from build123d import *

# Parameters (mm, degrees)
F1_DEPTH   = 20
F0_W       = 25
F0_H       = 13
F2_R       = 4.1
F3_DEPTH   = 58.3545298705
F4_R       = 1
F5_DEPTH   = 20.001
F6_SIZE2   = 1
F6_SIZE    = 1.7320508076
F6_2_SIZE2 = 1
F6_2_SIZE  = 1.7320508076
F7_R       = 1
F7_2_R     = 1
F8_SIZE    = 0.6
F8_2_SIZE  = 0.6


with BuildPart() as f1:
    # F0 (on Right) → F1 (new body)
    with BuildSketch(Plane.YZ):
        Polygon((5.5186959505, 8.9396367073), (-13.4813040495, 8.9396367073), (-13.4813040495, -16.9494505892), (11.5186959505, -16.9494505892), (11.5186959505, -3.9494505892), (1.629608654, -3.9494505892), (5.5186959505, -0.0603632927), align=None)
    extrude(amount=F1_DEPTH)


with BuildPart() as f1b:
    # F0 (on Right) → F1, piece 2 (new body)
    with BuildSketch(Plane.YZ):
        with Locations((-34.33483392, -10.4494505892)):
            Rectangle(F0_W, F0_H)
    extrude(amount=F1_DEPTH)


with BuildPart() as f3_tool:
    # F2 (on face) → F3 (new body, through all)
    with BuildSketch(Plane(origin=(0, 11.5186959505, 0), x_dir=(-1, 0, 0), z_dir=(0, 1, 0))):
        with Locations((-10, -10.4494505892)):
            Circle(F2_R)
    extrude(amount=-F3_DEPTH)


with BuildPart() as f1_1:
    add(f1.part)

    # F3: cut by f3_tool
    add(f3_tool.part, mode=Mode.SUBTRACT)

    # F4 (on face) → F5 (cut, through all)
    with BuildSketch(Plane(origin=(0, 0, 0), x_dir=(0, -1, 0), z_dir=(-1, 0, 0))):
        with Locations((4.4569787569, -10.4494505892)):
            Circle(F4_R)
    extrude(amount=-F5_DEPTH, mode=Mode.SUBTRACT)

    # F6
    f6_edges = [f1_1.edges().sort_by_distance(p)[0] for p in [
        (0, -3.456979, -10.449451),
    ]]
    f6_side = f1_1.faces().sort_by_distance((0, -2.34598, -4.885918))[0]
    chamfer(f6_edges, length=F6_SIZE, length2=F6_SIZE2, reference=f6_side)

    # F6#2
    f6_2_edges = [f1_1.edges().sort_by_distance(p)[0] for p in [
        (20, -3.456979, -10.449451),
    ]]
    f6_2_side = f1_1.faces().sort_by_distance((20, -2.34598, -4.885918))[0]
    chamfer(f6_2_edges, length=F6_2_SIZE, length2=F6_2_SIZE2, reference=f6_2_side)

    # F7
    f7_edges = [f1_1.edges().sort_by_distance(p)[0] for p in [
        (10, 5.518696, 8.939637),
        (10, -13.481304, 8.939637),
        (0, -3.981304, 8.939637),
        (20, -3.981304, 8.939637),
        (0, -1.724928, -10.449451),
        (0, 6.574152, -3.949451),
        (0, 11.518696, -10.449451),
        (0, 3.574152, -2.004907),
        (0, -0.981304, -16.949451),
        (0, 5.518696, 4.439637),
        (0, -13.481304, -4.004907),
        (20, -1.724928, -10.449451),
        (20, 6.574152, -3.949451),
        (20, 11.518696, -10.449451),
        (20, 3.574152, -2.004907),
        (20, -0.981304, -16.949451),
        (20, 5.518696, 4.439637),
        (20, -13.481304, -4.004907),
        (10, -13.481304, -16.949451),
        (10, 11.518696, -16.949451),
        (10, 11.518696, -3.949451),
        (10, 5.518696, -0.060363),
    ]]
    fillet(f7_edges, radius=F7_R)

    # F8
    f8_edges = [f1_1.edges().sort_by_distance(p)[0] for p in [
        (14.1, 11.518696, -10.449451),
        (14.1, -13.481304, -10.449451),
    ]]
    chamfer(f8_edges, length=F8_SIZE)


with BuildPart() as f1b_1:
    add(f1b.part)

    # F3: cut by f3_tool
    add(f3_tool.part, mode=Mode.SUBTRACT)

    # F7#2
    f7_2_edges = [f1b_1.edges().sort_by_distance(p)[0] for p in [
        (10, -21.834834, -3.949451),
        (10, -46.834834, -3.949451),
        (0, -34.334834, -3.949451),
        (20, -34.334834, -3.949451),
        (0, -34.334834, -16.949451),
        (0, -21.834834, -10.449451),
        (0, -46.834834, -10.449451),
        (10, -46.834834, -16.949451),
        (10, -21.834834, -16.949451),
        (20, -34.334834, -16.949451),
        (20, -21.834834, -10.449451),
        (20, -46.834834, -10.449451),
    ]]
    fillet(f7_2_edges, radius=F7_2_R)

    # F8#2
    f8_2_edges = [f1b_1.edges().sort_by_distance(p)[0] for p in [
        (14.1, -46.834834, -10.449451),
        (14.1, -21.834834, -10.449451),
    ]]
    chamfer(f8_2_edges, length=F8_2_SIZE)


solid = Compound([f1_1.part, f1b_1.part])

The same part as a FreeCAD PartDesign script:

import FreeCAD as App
import Part
import Sketcher

V = App.Vector
Q = App.Units.Quantity


def edges_at(feature, points):
    """Names of the edges that pass closest to the given points."""
    edges = feature.Shape.Edges
    near = lambda p: min(range(len(edges)), key=lambda i: edges[i].distToShape(Part.Vertex(*p))[0])
    return sorted({f"Edge{near(p) + 1}" for p in points})


def add_polygon(sketch, points):
    """Adds a closed chain of lines whose ends are joined by coincident constraints."""
    first, n = sketch.GeometryCount, len(points)
    for a, b in zip(points, points[1:] + points[:1]):
        sketch.addGeometry(Part.LineSegment(App.Vector(*a, 0), App.Vector(*b, 0)), False)
    for i in range(n):
        sketch.addConstraint(Sketcher.Constraint("Coincident", first + i, 2, first + (i + 1) % n, 1))

doc = App.newDocument("Part")
body = doc.addObject("PartDesign::Body", "Body")

sketch1 = doc.addObject("Sketcher::SketchObject", "Sketch")
body.addObject(sketch1)
sketch1.AttachmentSupport = (doc.YZ_Plane, [""])
sketch1.MapMode = "FlatFace"
add_polygon(sketch1, [(6, 9), (-13, 9), (-13, -17), (12, -17), (12, -4), (2, -4), (6, 0)])
sketch1.addConstraint([
    Sketcher.Constraint("Horizontal", 0),
    Sketcher.Constraint("Vertical", 1),
    Sketcher.Constraint("Horizontal", 2),
    Sketcher.Constraint("Vertical", 3),
    Sketcher.Constraint("Horizontal", 4),
    Sketcher.Constraint("Vertical", 6),
    Sketcher.Constraint("DistanceX", 0, 2, 0, 1, 19.0),
    Sketcher.Constraint("DistanceX", 2, 1, 2, 2, 25.0),
    Sketcher.Constraint("DistanceY", 3, 1, 3, 2, 13.0),
    Sketcher.Constraint("DistanceY", 6, 1, 6, 2, 9.0),
    Sketcher.Constraint("Angle", 5, Q("45 deg")),
    Sketcher.Constraint("Distance", 5, 5.5),
    Sketcher.Constraint("DistanceY", 1, 2, -1, 1, 16.949451),
    Sketcher.Constraint("DistanceX", -1, 1, 4, 2, 1.629609),
])
pad1 = doc.addObject("PartDesign::Pad", "Pad")
body.addObject(pad1)
pad1.Profile = sketch1
pad1.Length = 20
body2 = doc.addObject("PartDesign::Body", "Body001")

sketch2 = doc.addObject("Sketcher::SketchObject", "Sketch001")
body2.addObject(sketch2)
sketch2.AttachmentSupport = (doc.getObject("YZ_Plane001"), [""])
sketch2.MapMode = "FlatFace"
add_polygon(sketch2, [(-47, -4), (-47, -17), (-22, -17), (-22, -4)])
sketch2.addConstraint([
    Sketcher.Constraint("Vertical", 0),
    Sketcher.Constraint("Horizontal", 1),
    Sketcher.Constraint("Vertical", 2),
    Sketcher.Constraint("Horizontal", 3),
    Sketcher.Constraint("DistanceX", 1, 1, 1, 2, 25.0),
    Sketcher.Constraint("DistanceY", 0, 2, 0, 1, 13.0),
    Sketcher.Constraint("DistanceY", 0, 2, -1, 1, 16.949451),
    Sketcher.Constraint("DistanceX", 0, 2, -1, 1, 46.834834),
])
pad2 = doc.addObject("PartDesign::Pad", "Pad001")
body2.addObject(pad2)
pad2.Profile = sketch2
pad2.Length = 20
body3 = doc.addObject("PartDesign::Body", "Body002")

sketch3 = doc.addObject("Sketcher::SketchObject", "Sketch002")
body3.addObject(sketch3)
sketch3.AttachmentSupport = (doc.getObject("XZ_Plane002"), [""])
sketch3.MapMode = "FlatFace"
sketch3.AttachmentOffset = App.Placement(V(0, 0, -11.518696), App.Rotation())
sketch3.addGeometry(Part.Circle(V(10, -10.4, 0), V(0, 0, 1), 4.1), False)
sketch3.addConstraint([
    Sketcher.Constraint("Diameter", 0, 8.2),
    Sketcher.Constraint("DistanceX", -1, 1, 0, 3, 10.0),
    Sketcher.Constraint("DistanceY", 0, 3, -1, 1, 10.449451),
])
pad3 = doc.addObject("PartDesign::Pad", "Pad002")
body3.addObject(pad3)
pad3.Profile = sketch3
pad3.Length = 58.35453
doc.recompute()

body4 = doc.addObject("PartDesign::Body", "Body003")
body4.BaseFeature = body3
boolean = doc.addObject("PartDesign::Boolean", "Boolean")
body.addObject(boolean)
boolean.Type = "Cut"
boolean.addObjects([body4])
doc.recompute()

sketch4 = doc.addObject("Sketcher::SketchObject", "Sketch003")
body.addObject(sketch4)
sketch4.AttachmentSupport = (doc.YZ_Plane, [""])
sketch4.MapMode = "FlatFace"
sketch4.addGeometry(Part.Circle(V(-4.5, -10.4, 0), V(0, 0, 1), 1), False)
sketch4.addConstraint([
    Sketcher.Constraint("Diameter", 0, 2.0),
    Sketcher.Constraint("DistanceX", 0, 3, -1, 1, 4.456979),
    Sketcher.Constraint("DistanceY", 0, 3, -1, 1, 10.449451),
])
pocket1 = doc.addObject("PartDesign::Pocket", "Pocket")
body.addObject(pocket1)
pocket1.Profile = sketch4
pocket1.Type = "ThroughAll"
pocket1.Reversed = True
doc.recompute()

chamfer = doc.addObject("PartDesign::Chamfer", "Chamfer")
body.addObject(chamfer)
chamfer.Base = (pocket1, edges_at(pocket1, [(0, -3.457, -10.449)]))
chamfer.ChamferType = "Two distances"
chamfer.Size = 1.732051
chamfer.Size2 = 1
doc.recompute()

chamfer2 = doc.addObject("PartDesign::Chamfer", "Chamfer001")
body.addObject(chamfer2)
chamfer2.Base = (chamfer, edges_at(chamfer, [(20, -3.457, -10.449)]))
chamfer2.ChamferType = "Two distances"
chamfer2.Size = 1.732051
chamfer2.Size2 = 1
doc.recompute()

fillet = doc.addObject("PartDesign::Fillet", "Fillet")
body.addObject(fillet)
fillet.Base = (chamfer2, edges_at(chamfer2, [
    (10, 5.519, 8.94),
    (10, -13.481, 8.94),
    (0, -3.981, 8.94),
    (20, -3.981, 8.94),
    (0, -1.725, -10.449),
    (0, 6.574, -3.949),
    (0, 11.519, -10.449),
    (0, 3.574, -2.005),
    (0, -0.981, -16.949),
    (0, 5.519, 4.44),
    (0, -13.481, -4.005),
    (20, -1.725, -10.449),
    (20, 6.574, -3.949),
    (20, 11.519, -10.449),
    (20, 3.574, -2.005),
    (20, -0.981, -16.949),
    (20, 5.519, 4.44),
    (20, -13.481, -4.005),
    (10, -13.481, -16.949),
    (10, 11.519, -16.949),
    (10, 11.519, -3.949),
    (10, 5.519, -0.06),
]))
fillet.Radius = 1
doc.recompute()

chamfer3 = doc.addObject("PartDesign::Chamfer", "Chamfer002")
body.addObject(chamfer3)
chamfer3.Base = (fillet, edges_at(fillet, [(14.1, 11.519, -10.449), (14.1, -13.481, -10.449)]))
chamfer3.Size = 0.6
doc.recompute()

boolean2 = doc.addObject("PartDesign::Boolean", "Boolean001")
body2.addObject(boolean2)
boolean2.Type = "Cut"
boolean2.addObjects([body3])
doc.recompute()

fillet2 = doc.addObject("PartDesign::Fillet", "Fillet001")
body2.addObject(fillet2)
fillet2.Base = (boolean2, edges_at(boolean2, [
    (10, -21.835, -3.949),
    (10, -46.835, -3.949),
    (0, -34.335, -3.949),
    (20, -34.335, -3.949),
    (0, -34.335, -16.949),
    (0, -21.835, -10.449),
    (0, -46.835, -10.449),
    (10, -46.835, -16.949),
    (10, -21.835, -16.949),
    (20, -34.335, -16.949),
    (20, -21.835, -10.449),
    (20, -46.835, -10.449),
]))
fillet2.Radius = 1
doc.recompute()

chamfer4 = doc.addObject("PartDesign::Chamfer", "Chamfer003")
body2.addObject(chamfer4)
chamfer4.Base = (fillet2, edges_at(fillet2, [(14.1, -46.835, -10.449), (14.1, -21.835, -10.449)]))
chamfer4.Size = 0.6

doc.recompute()
